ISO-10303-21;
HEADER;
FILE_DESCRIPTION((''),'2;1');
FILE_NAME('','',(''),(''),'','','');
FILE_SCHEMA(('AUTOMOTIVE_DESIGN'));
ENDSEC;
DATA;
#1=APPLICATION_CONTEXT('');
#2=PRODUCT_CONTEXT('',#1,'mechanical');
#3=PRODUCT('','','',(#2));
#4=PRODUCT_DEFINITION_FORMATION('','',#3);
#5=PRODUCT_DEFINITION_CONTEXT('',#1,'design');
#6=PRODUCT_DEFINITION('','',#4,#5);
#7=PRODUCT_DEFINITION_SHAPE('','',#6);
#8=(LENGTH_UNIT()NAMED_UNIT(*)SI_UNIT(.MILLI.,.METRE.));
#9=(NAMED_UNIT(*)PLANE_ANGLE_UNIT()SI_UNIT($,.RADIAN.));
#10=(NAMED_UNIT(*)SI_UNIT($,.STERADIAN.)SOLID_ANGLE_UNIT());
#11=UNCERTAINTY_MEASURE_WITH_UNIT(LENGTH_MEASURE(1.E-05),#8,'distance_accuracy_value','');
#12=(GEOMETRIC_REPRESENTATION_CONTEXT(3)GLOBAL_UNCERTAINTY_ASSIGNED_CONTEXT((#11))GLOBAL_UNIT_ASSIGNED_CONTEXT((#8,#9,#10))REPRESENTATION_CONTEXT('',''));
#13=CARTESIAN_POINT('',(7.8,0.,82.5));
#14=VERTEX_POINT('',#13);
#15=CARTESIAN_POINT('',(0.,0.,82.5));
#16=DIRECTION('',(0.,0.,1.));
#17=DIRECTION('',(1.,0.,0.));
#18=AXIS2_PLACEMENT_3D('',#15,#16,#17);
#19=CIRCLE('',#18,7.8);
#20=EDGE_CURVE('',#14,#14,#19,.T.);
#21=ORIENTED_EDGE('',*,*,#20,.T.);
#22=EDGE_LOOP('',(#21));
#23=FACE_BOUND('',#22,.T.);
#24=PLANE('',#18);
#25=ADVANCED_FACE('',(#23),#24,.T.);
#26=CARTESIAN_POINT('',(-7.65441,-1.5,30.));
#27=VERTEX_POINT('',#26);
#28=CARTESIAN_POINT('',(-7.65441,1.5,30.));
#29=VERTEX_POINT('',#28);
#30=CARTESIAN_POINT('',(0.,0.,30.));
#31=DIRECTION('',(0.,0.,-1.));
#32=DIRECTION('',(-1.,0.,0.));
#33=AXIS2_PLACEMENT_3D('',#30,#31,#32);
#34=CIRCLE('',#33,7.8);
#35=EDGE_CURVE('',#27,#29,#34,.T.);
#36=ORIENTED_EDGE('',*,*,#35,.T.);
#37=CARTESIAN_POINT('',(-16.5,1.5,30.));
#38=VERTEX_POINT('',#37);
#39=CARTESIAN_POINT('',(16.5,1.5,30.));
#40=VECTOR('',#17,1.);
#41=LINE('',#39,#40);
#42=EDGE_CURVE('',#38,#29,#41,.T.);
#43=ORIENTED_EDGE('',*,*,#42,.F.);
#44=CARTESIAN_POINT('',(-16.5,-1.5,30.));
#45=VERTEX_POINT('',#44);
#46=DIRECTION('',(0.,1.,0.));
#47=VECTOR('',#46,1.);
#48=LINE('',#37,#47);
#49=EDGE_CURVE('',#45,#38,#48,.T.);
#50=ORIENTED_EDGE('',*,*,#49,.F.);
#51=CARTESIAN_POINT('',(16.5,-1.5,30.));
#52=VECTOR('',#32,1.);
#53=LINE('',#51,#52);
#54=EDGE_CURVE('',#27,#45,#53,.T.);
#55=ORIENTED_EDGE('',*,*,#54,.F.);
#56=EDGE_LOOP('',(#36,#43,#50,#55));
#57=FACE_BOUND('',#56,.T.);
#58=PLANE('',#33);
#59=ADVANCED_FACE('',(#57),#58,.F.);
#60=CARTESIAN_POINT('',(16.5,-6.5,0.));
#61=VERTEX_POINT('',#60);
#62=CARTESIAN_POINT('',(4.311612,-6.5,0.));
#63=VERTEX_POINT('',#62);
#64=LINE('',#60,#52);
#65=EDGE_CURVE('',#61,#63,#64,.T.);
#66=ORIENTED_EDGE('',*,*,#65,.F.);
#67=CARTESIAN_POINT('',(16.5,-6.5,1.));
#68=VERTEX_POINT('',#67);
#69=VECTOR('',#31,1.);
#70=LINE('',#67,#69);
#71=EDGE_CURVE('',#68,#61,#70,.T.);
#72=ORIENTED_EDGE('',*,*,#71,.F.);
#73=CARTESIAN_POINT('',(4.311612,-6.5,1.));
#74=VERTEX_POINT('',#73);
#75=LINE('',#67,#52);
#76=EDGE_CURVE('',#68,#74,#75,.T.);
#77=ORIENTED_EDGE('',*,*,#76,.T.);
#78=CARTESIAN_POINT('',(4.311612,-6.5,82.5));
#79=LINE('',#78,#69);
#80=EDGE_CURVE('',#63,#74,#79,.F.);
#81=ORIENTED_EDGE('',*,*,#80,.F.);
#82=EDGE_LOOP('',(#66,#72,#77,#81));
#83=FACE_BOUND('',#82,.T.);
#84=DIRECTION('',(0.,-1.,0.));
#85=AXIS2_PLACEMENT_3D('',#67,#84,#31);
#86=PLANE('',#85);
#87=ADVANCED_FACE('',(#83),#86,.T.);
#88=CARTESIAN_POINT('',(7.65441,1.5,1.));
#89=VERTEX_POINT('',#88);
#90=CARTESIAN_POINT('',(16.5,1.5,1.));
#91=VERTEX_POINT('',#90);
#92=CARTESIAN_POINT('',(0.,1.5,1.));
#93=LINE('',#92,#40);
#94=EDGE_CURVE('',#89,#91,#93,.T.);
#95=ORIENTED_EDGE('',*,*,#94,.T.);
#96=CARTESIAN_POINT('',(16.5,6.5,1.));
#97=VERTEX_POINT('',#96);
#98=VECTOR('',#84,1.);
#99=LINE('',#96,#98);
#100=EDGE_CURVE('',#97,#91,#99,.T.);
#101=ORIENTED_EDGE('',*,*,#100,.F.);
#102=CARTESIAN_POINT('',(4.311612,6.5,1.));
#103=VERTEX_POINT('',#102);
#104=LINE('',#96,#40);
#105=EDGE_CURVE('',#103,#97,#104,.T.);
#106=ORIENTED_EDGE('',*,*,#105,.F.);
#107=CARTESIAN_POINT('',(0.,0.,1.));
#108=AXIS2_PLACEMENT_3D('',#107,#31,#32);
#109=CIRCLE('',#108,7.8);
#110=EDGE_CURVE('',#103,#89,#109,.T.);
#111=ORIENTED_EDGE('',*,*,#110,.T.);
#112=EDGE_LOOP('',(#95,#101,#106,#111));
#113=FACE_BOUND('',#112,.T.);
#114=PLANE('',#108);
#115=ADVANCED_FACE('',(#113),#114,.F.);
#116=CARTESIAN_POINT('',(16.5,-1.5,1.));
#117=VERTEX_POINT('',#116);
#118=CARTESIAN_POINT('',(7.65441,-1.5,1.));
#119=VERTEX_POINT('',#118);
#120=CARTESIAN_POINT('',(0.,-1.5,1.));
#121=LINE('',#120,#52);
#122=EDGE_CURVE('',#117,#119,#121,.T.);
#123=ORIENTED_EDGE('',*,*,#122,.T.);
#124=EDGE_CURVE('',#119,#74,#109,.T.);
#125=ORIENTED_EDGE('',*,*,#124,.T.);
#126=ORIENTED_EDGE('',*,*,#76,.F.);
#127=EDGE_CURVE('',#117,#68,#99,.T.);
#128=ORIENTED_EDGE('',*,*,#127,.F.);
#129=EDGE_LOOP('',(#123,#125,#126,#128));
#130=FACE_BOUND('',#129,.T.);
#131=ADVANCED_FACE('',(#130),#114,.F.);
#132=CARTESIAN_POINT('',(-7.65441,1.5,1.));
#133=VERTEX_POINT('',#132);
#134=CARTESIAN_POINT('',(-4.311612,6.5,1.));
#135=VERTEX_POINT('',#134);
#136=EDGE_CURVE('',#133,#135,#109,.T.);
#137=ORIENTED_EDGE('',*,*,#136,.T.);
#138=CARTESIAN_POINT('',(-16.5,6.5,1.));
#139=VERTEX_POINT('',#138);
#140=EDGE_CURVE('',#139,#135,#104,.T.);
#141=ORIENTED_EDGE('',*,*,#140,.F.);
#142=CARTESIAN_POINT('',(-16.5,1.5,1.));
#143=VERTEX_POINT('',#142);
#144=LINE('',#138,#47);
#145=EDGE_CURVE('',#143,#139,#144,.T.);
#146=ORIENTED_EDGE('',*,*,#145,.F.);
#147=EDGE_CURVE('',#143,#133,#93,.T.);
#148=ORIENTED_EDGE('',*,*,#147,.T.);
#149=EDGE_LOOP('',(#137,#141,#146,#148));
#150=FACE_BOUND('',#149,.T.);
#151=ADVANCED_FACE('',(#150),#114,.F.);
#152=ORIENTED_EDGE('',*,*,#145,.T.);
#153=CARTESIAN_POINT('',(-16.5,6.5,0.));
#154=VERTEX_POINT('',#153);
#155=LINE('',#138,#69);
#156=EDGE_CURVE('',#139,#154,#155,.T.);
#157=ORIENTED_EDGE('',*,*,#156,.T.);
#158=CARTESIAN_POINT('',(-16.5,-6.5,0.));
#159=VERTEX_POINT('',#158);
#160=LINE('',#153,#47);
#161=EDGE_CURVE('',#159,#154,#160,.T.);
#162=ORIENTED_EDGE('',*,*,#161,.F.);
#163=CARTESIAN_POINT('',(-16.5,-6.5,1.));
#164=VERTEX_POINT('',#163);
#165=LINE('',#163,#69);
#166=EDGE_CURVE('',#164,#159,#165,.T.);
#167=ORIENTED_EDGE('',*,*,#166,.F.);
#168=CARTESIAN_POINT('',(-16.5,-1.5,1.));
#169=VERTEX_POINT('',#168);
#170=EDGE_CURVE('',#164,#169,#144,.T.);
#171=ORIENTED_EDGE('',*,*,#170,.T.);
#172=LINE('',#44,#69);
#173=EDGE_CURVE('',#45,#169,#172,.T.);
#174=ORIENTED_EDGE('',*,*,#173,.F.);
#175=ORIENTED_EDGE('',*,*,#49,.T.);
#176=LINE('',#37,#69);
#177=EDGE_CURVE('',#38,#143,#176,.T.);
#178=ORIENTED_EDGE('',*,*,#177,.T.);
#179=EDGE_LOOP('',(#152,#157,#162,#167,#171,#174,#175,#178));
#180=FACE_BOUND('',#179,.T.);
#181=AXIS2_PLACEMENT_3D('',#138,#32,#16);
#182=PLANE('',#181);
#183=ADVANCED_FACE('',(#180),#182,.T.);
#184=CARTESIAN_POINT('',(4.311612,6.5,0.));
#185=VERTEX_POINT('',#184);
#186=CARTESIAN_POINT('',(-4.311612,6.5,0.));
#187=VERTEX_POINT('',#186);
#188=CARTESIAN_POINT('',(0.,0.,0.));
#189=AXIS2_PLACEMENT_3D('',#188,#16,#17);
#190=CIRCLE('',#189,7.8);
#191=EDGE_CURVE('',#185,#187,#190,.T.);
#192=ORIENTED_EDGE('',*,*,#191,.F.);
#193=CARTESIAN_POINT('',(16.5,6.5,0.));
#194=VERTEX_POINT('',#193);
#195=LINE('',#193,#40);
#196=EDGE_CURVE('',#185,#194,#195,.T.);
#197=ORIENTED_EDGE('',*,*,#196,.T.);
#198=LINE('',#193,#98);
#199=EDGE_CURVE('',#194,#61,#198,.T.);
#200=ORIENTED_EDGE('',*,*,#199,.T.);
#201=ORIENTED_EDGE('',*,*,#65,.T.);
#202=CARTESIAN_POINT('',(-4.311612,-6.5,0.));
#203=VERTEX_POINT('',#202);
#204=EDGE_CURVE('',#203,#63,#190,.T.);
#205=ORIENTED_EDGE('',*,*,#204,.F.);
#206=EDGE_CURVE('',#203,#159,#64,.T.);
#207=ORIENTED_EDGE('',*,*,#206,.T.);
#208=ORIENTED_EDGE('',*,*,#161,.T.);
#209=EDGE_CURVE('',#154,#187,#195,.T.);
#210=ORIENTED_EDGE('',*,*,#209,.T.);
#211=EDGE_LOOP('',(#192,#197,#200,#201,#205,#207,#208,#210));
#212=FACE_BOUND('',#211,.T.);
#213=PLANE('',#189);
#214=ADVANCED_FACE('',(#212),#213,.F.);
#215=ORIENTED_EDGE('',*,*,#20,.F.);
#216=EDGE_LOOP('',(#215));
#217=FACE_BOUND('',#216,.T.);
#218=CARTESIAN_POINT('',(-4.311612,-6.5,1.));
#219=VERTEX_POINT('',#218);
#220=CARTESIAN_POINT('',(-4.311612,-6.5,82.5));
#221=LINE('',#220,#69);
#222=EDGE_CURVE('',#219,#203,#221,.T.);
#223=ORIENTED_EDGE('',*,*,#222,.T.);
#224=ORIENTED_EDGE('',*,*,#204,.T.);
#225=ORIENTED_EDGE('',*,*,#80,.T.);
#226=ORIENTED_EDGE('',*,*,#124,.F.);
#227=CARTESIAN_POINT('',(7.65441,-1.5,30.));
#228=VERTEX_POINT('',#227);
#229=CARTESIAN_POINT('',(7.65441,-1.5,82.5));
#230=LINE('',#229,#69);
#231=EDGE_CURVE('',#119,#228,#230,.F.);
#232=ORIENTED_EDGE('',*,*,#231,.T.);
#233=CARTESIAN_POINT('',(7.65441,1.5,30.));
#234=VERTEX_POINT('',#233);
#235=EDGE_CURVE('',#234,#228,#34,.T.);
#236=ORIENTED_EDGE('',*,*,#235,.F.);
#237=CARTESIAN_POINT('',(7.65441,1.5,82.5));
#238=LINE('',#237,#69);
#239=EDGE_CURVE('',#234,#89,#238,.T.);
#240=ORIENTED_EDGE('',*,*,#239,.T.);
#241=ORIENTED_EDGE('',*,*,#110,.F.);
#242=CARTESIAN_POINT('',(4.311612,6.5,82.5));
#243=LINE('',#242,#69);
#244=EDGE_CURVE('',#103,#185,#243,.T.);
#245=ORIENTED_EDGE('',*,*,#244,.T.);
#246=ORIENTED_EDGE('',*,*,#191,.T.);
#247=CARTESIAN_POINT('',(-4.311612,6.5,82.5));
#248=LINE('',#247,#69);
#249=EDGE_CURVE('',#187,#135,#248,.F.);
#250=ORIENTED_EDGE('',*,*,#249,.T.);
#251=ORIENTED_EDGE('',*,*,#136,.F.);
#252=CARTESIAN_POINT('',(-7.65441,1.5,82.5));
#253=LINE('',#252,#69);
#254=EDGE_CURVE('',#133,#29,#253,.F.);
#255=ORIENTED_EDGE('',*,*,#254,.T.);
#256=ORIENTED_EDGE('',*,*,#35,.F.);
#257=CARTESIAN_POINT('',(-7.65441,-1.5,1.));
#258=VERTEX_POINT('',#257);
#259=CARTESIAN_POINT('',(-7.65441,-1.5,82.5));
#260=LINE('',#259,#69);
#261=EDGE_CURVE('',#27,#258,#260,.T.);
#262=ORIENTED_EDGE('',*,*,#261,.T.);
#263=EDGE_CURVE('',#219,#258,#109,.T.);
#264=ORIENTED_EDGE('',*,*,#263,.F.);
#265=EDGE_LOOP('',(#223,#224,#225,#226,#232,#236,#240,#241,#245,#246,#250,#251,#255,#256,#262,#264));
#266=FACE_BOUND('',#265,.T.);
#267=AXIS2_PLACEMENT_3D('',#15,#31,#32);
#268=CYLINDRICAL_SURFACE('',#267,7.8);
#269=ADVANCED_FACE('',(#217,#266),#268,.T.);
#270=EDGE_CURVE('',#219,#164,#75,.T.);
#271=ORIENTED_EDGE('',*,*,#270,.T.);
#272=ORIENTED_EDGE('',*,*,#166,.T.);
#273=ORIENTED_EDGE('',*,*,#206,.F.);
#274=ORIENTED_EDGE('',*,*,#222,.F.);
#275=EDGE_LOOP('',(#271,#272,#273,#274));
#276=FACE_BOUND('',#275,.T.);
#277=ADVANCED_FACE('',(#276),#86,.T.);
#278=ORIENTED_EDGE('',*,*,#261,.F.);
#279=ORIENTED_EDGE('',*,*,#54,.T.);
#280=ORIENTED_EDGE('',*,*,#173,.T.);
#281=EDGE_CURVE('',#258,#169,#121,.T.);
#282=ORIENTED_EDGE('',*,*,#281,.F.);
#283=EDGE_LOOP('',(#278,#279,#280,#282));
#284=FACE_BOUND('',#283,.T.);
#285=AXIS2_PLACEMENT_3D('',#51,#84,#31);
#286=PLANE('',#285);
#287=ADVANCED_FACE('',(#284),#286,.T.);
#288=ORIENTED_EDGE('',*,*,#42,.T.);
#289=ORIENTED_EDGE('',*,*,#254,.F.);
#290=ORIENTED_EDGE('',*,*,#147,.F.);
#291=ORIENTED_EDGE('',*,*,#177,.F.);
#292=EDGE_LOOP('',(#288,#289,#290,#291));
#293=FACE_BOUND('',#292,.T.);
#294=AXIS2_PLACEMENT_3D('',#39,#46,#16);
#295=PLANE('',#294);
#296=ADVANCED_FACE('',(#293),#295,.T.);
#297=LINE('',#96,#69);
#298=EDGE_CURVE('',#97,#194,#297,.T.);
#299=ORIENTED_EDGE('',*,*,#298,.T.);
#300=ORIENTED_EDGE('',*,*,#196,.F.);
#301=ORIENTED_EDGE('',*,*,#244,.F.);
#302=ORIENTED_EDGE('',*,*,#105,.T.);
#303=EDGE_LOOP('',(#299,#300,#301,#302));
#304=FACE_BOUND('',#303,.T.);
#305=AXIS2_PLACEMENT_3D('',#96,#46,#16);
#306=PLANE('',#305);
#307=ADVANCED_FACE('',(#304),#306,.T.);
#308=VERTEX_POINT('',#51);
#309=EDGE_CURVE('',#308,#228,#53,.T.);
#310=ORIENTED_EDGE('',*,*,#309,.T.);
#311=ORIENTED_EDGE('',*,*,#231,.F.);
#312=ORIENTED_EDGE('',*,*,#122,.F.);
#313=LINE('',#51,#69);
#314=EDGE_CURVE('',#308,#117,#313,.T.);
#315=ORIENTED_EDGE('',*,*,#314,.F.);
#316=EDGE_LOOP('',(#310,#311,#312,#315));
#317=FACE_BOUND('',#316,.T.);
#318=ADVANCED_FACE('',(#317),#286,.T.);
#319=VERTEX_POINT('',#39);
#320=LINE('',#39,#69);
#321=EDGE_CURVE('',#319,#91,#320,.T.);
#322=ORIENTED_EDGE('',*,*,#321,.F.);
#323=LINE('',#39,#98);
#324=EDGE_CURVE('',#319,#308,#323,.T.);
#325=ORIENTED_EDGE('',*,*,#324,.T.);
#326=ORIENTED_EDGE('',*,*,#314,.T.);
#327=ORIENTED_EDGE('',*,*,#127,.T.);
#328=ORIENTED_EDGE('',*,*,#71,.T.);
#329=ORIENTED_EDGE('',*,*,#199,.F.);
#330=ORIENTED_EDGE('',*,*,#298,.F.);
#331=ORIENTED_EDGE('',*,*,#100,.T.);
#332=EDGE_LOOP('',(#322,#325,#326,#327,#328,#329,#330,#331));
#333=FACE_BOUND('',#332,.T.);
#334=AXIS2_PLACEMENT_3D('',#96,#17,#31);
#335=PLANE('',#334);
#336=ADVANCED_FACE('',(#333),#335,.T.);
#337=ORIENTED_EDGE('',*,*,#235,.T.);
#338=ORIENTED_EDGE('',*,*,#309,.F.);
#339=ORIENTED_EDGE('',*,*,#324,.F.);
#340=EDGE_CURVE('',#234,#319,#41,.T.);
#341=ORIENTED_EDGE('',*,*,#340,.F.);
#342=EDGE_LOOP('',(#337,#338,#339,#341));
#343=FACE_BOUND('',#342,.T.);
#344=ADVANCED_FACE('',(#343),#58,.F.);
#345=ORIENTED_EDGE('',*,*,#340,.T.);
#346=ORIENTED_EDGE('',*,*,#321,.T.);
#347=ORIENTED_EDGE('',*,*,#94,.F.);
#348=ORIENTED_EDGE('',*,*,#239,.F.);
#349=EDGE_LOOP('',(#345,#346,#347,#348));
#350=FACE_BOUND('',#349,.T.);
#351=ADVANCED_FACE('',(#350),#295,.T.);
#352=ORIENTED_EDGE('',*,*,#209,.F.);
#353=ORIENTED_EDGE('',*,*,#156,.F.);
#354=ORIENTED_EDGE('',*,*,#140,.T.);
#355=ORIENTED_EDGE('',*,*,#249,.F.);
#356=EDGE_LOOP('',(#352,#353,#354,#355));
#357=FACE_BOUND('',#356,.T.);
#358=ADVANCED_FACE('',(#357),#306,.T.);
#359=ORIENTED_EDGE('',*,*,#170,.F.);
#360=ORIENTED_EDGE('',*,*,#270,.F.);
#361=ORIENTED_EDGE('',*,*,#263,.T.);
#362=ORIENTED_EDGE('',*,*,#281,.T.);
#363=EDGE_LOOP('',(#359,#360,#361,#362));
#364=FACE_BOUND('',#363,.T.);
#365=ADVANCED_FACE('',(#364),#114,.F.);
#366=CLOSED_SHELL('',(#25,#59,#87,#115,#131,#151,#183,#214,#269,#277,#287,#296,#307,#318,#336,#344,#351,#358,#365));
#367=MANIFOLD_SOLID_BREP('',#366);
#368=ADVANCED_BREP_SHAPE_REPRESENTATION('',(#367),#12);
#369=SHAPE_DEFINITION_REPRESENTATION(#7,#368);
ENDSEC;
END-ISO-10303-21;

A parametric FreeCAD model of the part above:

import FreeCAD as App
import Part
import Sketcher
from FreeCAD import Vector
Q = App.Units.Quantity

doc = App.newDocument("Part")
params = doc.addObject("Spreadsheet::Sheet", "Params")
for row, (alias, value) in enumerate([
    ("sketch1_diameter", "15.6 mm"),
    ("pad1_length", "82.5 mm"),
    ("sketch2_width", "33 mm"),
    ("sketch2_height", "13 mm"),
    ("pad2_length", "1 mm"),
    ("sketch3_width", "33 mm"),
    ("sketch3_height", "3 mm"),
    ("pad3_length", "30 mm"),
], start=1):
    params.set(f"A{row}", alias)
    params.set(f"B{row}", "=" + value)
    params.setAlias(f"B{row}", alias)

body = doc.addObject("PartDesign::Body", "Body")

# Sketch on XY plane
sketch1 = body.newObject("Sketcher::SketchObject", "Sketch")
sketch1.AttachmentSupport = (doc.getObject("XY_Plane"), [""])
sketch1.MapMode = "FlatFace"
sketch1.addGeometry(Part.Circle(Vector(0, 0, 0), Vector(0, 0, 1), 8), False)
sketch1.addConstraint(Sketcher.Constraint("Coincident", 0, 3, -1, 1))
sketch1.addConstraint(Sketcher.Constraint("Diameter", 0, Q("15.6 mm")))
sketch1.setExpression("Constraints[1]", "Params.sketch1_diameter")
pad1 = body.newObject("PartDesign::Pad", "Pad")
pad1.Profile = sketch1
pad1.setExpression("Length", "Params.pad1_length")

# Sketch on XY plane
sketch2 = body.newObject("Sketcher::SketchObject", "Sketch001")
sketch2.AttachmentSupport = (doc.getObject("XY_Plane"), [""])
sketch2.MapMode = "FlatFace"
sketch2.addGeometry(Part.LineSegment(Vector(16, 6, 0), Vector(16, -6, 0)), False)
sketch2.addGeometry(Part.LineSegment(Vector(16, -6, 0), Vector(-16, -6, 0)), False)
sketch2.addGeometry(Part.LineSegment(Vector(-16, -6, 0), Vector(-16, 6, 0)), False)
sketch2.addGeometry(Part.LineSegment(Vector(-16, 6, 0), Vector(16, 6, 0)), False)
sketch2.addConstraint(Sketcher.Constraint("Coincident", 0, 2, 1, 1))
sketch2.addConstraint(Sketcher.Constraint("Coincident", 1, 2, 2, 1))
sketch2.addConstraint(Sketcher.Constraint("Coincident", 2, 2, 3, 1))
sketch2.addConstraint(Sketcher.Constraint("Coincident", 3, 2, 0, 1))
sketch2.addConstraint(Sketcher.Constraint("Vertical", 0))
sketch2.addConstraint(Sketcher.Constraint("Horizontal", 1))
sketch2.addConstraint(Sketcher.Constraint("Vertical", 2))
sketch2.addConstraint(Sketcher.Constraint("Horizontal", 3))
sketch2.addConstraint(Sketcher.Constraint("Symmetric", 0, 2, 2, 2, -1, 1))
sketch2.addConstraint(Sketcher.Constraint("DistanceX", 1, 2, 1, 1, Q("33 mm")))
sketch2.addConstraint(Sketcher.Constraint("DistanceY", 0, 2, 0, 1, Q("13 mm")))
sketch2.setExpression("Constraints[9]", "Params.sketch2_width")
sketch2.setExpression("Constraints[10]", "Params.sketch2_height")
pad2 = body.newObject("PartDesign::Pad", "Pad001")
pad2.Profile = sketch2
pad2.setExpression("Length", "Params.pad2_length")

# Sketch on XY plane
sketch3 = body.newObject("Sketcher::SketchObject", "Sketch002")
sketch3.AttachmentSupport = (doc.getObject("XY_Plane"), [""])
sketch3.MapMode = "FlatFace"
sketch3.addGeometry(Part.LineSegment(Vector(16.5, 1.5, 0), Vector(16.5, -1.5, 0)), False)
sketch3.addGeometry(Part.LineSegment(Vector(16.5, -1.5, 0), Vector(-16.5, -1.5, 0)), False)
sketch3.addGeometry(Part.LineSegment(Vector(-16.5, -1.5, 0), Vector(-16.5, 1.5, 0)), False)
sketch3.addGeometry(Part.LineSegment(Vector(-16.5, 1.5, 0), Vector(16.5, 1.5, 0)), False)
sketch3.addConstraint(Sketcher.Constraint("Coincident", 0, 2, 1, 1))
sketch3.addConstraint(Sketcher.Constraint("Coincident", 1, 2, 2, 1))
sketch3.addConstraint(Sketcher.Constraint("Coincident", 2, 2, 3, 1))
sketch3.addConstraint(Sketcher.Constraint("Coincident", 3, 2, 0, 1))
sketch3.addConstraint(Sketcher.Constraint("Vertical", 0))
sketch3.addConstraint(Sketcher.Constraint("Horizontal", 1))
sketch3.addConstraint(Sketcher.Constraint("Vertical", 2))
sketch3.addConstraint(Sketcher.Constraint("Horizontal", 3))
sketch3.addConstraint(Sketcher.Constraint("Symmetric", 0, 2, 2, 2, -1, 1))
sketch3.addConstraint(Sketcher.Constraint("DistanceX", 1, 2, 1, 1, Q("33 mm")))
sketch3.addConstraint(Sketcher.Constraint("DistanceY", 0, 2, 0, 1, Q("3 mm")))
sketch3.setExpression("Constraints[9]", "Params.sketch3_width")
sketch3.setExpression("Constraints[10]", "Params.sketch3_height")
pad3 = body.newObject("PartDesign::Pad", "Pad002")
pad3.Profile = sketch3
pad3.setExpression("Length", "Params.pad3_length")

doc.recompute()
